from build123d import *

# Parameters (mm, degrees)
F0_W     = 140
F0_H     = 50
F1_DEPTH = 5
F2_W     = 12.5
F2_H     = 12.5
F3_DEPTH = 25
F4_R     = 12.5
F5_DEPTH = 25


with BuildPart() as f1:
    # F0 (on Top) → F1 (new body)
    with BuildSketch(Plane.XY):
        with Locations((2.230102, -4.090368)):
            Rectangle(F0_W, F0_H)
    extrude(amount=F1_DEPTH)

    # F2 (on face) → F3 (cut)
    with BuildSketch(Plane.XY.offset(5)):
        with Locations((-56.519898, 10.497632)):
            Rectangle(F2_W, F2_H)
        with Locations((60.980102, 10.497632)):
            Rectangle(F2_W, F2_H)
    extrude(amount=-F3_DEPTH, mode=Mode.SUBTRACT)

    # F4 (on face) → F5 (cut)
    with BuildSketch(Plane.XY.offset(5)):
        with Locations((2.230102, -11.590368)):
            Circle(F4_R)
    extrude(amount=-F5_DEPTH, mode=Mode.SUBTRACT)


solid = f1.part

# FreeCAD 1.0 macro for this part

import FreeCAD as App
import Part
import Sketcher

V = App.Vector


def add_polygon(sketch, points):
    """Adds a closed chain of lines whose ends are joined by coincident constraints."""
    first, n = sketch.GeometryCount, len(points)
    for a, b in zip(points, points[1:] + points[:1]):
        sketch.addGeometry(Part.LineSegment(App.Vector(*a, 0), App.Vector(*b, 0)), False)
    for i in range(n):
        sketch.addConstraint(Sketcher.Constraint("Coincident", first + i, 2, first + (i + 1) % n, 1))

doc = App.newDocument("Part")
params = doc.addObject("Spreadsheet::Sheet", "Params")
for row, (alias, value) in enumerate([
    ("sketch1_width", "140 mm"),
    ("sketch1_height", "50 mm"),
    ("pad1_length", "5 mm"),
    ("sketch2_width", "12.5 mm"),
    ("pocket1_length", "25 mm"),
    ("sketch3_diameter", "25 mm"),
    ("pocket2_length", "25 mm"),
], start=1):
    params.set(f"A{row}", alias)
    params.set(f"B{row}", "=" + value)
    params.setAlias(f"B{row}", alias)

body = doc.addObject("PartDesign::Body", "Body")

# Sketch on XY plane
sketch1 = body.newObject("Sketcher::SketchObject", "Sketch")
sketch1.AttachmentSupport = (doc.getObject("XY_Plane"), [""])
sketch1.MapMode = "FlatFace"
add_polygon(sketch1, [(-67.769898, 20.909632), (-67.769898, -29.090368), (72.230102, -29.090368), (72.230102, 20.909632)])  # lines 0-3
sketch1.addConstraint([
    Sketcher.Constraint("Vertical", 0),
    Sketcher.Constraint("Horizontal", 1),
    Sketcher.Constraint("Vertical", 2),
    Sketcher.Constraint("Horizontal", 3),
    Sketcher.Constraint("DistanceX", 1, 1, 1, 2, 140.0),
    Sketcher.Constraint("DistanceY", 0, 2, 0, 1, 50.0),
    Sketcher.Constraint("DistanceY", 0, 2, -1, 1, 29.090368),
    Sketcher.Constraint("DistanceX", 0, 2, -1, 1, 67.769898),
])
sketch1.setExpression("Constraints[8]", "Params.sketch1_width")
sketch1.setExpression("Constraints[9]", "Params.sketch1_height")
pad1 = body.newObject("PartDesign::Pad", "Pad")
pad1.Profile = sketch1
pad1.setExpression("Length", "Params.pad1_length")

# Sketch on XY plane
sketch2 = body.newObject("Sketcher::SketchObject", "Sketch001")
sketch2.AttachmentSupport = (doc.getObject("XY_Plane"), [""])
sketch2.MapMode = "FlatFace"
sketch2.AttachmentOffset = App.Placement(V(0, 0, 5), App.Rotation())
add_polygon(sketch2, [(-62.769898, 16.747632), (-62.769898, 4.247632), (-50.269898, 4.247632), (-50.269898, 16.747632)])  # lines 0-3
add_polygon(sketch2, [(54.730102, 16.747632), (54.730102, 4.247632), (67.230102, 4.247632), (67.230102, 16.747632)])  # lines 4-7
sketch2.addConstraint([
    Sketcher.Constraint("Vertical", 0),
    Sketcher.Constraint("Horizontal", 1),
    Sketcher.Constraint("Vertical", 2),
    Sketcher.Constraint("Horizontal", 3),
    Sketcher.Constraint("Vertical", 4),
    Sketcher.Constraint("Horizontal", 5),
    Sketcher.Constraint("Vertical", 6),
    Sketcher.Constraint("Horizontal", 7),
    Sketcher.Constraint("Horizontal", 1, 2, 4, 2),
    Sketcher.Constraint("Horizontal", 3, 2, 6, 2),
    Sketcher.Constraint("Equal", 3, 5),
    Sketcher.Constraint("Equal", 7, 0),
    Sketcher.Constraint("DistanceX", 1, 1, 1, 2, 12.5),
    Sketcher.Constraint("DistanceX", 1, 2, 4, 2, 105.0),
    Sketcher.Constraint("DistanceY", -1, 1, 2, 2, 16.747632),
    Sketcher.Constraint("DistanceX", 0, 2, -1, 1, 62.769898),
])
sketch2.setExpression("Constraints[20]", "Params.sketch2_width")
pocket1 = body.newObject("PartDesign::Pocket", "Pocket")
pocket1.Profile = sketch2
pocket1.setExpression("Length", "Params.pocket1_length")

# Sketch on XY plane
sketch3 = body.newObject("Sketcher::SketchObject", "Sketch002")
sketch3.AttachmentSupport = (doc.getObject("XY_Plane"), [""])
sketch3.MapMode = "FlatFace"
sketch3.AttachmentOffset = App.Placement(V(0, 0, 5), App.Rotation())
sketch3.addGeometry(Part.Circle(V(2.230102, -11.590368, 0), V(0, 0, 1), 12.5), False)
sketch3.addConstraint([
    Sketcher.Constraint("Diameter", 0, 25.0),
    Sketcher.Constraint("DistanceX", -1, 1, 0, 3, 2.230102),
    Sketcher.Constraint("DistanceY", 0, 3, -1, 1, 11.590368),
])
sketch3.setExpression("Constraints[0]", "Params.sketch3_diameter")
pocket2 = body.newObject("PartDesign::Pocket", "Pocket001")
pocket2.Profile = sketch3
pocket2.setExpression("Length", "Params.pocket2_length")

doc.recompute()
